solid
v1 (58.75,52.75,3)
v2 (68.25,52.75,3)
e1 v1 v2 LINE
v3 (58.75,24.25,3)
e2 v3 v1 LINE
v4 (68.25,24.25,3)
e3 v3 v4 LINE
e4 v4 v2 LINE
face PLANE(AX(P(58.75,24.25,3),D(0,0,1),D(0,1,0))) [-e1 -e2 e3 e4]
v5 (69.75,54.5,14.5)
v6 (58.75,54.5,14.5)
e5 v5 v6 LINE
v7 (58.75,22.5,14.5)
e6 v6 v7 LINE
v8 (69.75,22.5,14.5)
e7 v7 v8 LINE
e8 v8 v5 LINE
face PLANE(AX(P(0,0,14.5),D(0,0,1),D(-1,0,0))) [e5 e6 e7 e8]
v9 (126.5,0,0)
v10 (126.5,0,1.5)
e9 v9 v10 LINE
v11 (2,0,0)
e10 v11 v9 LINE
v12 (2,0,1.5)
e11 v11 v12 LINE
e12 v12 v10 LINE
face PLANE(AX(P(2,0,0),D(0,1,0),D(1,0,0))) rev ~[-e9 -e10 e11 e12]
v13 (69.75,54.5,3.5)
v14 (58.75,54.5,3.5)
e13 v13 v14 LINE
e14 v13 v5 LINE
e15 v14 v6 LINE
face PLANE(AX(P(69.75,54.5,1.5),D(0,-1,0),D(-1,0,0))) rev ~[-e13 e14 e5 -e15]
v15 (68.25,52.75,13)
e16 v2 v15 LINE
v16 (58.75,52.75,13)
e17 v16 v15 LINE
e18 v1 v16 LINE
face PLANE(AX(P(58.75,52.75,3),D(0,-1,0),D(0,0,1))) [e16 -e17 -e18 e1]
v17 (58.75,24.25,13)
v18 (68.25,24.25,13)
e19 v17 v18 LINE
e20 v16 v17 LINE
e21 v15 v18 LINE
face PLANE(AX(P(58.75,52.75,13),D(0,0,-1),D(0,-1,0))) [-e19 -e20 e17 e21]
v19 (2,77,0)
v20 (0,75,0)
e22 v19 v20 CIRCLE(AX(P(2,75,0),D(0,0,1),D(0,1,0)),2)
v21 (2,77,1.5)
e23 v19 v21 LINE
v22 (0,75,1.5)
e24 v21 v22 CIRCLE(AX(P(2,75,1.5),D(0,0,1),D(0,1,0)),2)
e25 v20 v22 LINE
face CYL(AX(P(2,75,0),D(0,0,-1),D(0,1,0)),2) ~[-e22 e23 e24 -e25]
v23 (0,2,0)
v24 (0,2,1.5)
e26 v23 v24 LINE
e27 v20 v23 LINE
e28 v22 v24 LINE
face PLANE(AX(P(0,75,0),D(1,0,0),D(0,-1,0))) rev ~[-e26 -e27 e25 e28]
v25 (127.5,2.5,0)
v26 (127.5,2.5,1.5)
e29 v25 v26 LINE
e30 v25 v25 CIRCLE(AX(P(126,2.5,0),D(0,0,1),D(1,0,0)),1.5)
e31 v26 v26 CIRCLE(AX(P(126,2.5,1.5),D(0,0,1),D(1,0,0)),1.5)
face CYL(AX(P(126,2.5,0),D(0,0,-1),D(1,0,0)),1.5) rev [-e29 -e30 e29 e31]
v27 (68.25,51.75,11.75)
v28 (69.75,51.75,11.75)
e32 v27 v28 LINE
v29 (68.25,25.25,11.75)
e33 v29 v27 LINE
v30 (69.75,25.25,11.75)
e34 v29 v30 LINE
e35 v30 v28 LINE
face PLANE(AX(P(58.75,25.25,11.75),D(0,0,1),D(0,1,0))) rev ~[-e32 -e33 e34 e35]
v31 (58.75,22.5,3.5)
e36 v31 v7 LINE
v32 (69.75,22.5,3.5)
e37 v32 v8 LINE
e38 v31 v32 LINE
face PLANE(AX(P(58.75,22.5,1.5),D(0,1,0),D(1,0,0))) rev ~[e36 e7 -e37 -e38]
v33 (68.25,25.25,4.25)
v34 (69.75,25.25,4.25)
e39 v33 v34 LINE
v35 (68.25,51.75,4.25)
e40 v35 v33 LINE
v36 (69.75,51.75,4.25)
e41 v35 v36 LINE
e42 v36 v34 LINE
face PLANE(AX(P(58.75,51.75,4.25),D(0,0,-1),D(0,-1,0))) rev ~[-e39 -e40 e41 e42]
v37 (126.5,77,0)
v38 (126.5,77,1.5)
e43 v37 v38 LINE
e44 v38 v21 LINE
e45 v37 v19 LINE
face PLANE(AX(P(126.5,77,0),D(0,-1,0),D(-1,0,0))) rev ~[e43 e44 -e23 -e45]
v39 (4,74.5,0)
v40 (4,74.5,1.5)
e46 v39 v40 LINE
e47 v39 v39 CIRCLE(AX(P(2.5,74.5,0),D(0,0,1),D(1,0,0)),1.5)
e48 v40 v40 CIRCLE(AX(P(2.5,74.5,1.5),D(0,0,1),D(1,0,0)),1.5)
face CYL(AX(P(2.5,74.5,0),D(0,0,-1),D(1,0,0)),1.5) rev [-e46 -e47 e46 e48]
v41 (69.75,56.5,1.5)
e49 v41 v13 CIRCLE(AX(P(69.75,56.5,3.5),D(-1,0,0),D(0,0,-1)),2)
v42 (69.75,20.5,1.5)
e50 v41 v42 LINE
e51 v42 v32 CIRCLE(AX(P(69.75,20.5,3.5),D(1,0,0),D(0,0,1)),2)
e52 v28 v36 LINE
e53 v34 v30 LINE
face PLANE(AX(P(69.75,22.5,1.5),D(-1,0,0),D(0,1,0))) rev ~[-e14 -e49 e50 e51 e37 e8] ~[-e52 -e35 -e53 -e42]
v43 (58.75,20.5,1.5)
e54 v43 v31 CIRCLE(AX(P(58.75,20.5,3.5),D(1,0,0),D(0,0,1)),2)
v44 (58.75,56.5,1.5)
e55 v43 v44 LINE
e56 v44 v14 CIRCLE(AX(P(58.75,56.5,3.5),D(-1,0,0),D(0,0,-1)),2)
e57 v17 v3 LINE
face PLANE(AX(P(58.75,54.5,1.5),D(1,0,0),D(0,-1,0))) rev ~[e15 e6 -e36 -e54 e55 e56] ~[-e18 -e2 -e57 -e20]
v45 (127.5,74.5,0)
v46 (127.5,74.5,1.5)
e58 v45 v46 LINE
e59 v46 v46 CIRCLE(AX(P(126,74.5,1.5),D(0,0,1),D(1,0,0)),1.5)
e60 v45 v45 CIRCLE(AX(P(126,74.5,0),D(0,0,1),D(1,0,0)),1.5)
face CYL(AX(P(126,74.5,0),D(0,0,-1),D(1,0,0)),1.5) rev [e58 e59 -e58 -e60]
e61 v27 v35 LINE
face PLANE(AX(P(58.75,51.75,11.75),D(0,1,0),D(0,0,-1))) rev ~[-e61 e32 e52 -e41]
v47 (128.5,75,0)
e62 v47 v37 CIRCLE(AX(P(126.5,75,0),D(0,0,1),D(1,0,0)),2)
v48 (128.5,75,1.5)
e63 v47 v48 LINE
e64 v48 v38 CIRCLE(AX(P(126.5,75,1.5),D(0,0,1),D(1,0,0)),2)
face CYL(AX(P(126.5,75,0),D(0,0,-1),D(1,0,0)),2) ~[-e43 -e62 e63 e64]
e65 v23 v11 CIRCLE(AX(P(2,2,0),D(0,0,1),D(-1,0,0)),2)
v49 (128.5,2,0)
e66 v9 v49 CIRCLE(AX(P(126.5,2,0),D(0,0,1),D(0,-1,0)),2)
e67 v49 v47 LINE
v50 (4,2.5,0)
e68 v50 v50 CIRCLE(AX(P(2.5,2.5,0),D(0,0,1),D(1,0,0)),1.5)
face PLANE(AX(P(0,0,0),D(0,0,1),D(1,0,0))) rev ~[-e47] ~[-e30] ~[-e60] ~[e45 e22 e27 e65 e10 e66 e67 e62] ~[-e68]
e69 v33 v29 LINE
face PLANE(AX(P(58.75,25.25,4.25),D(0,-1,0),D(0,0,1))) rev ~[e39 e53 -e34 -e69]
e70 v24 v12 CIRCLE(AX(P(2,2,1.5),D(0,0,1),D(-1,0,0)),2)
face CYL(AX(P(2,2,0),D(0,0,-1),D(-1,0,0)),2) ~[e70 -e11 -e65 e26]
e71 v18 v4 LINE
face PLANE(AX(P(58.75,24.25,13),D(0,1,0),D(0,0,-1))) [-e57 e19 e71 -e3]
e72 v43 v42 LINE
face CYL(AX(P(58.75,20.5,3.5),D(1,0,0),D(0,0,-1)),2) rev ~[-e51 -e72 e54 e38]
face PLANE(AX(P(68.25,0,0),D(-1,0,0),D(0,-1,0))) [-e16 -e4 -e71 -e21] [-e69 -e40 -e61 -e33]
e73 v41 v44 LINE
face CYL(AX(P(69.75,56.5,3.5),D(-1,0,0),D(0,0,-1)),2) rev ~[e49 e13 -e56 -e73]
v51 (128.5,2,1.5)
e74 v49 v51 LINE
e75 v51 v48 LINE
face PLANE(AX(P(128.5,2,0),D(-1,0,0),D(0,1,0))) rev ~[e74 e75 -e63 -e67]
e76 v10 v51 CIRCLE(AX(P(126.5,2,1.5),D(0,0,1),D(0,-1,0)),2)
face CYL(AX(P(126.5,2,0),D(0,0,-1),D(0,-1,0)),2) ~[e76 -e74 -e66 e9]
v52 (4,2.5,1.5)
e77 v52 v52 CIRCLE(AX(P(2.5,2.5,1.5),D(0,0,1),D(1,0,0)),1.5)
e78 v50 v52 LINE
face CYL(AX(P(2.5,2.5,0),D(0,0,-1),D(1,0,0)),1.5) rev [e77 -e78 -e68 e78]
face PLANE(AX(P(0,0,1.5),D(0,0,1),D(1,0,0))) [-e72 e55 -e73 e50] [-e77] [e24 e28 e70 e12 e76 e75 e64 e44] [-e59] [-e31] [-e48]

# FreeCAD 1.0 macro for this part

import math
import FreeCAD as App
import Part
import Sketcher
Q = App.Units.Quantity


def edges_at(feature, points):
    """Names of the edges that pass closest to the given points."""
    edges = feature.Shape.Edges
    near = lambda p: min(range(len(edges)), key=lambda i: edges[i].distToShape(Part.Vertex(*p))[0])
    return sorted({f"Edge{near(p) + 1}" for p in points})


def add_polygon(sketch, points):
    """Adds a closed chain of lines whose ends are joined by coincident constraints."""
    first, n = sketch.GeometryCount, len(points)
    for a, b in zip(points, points[1:] + points[:1]):
        sketch.addGeometry(Part.LineSegment(App.Vector(*a, 0), App.Vector(*b, 0)), False)
    for i in range(n):
        sketch.addConstraint(Sketcher.Constraint("Coincident", first + i, 2, first + (i + 1) % n, 1))

doc = App.newDocument("Part")
body = doc.addObject("PartDesign::Body", "Body")

# Sketch on XY plane
sketch1 = doc.addObject("Sketcher::SketchObject", "Sketch")
body.addObject(sketch1)
sketch1.AttachmentSupport = (doc.XY_Plane, [""])
sketch1.MapMode = "FlatFace"
sketch1.addGeometry([
    Part.ArcOfCircle(Part.Circle(App.Vector(2, 2, 0), App.Vector(0, 0, 1), 2), math.radians(180), math.radians(270)),  # 0
    Part.LineSegment(App.Vector(2, 0, 0), App.Vector(126.5, 0, 0)),  # 1
    Part.ArcOfCircle(Part.Circle(App.Vector(126.5, 2, 0), App.Vector(0, 0, 1), 2), math.radians(-90), math.radians(0)),  # 2
    Part.LineSegment(App.Vector(128.5, 2, 0), App.Vector(128.5, 75, 0)),  # 3
    Part.ArcOfCircle(Part.Circle(App.Vector(126.5, 75, 0), App.Vector(0, 0, 1), 2), math.radians(0), math.radians(90)),  # 4
    Part.LineSegment(App.Vector(126.5, 77, 0), App.Vector(2, 77, 0)),  # 5
    Part.ArcOfCircle(Part.Circle(App.Vector(2, 75, 0), App.Vector(0, 0, 1), 2), math.radians(90), math.radians(180)),  # 6
    Part.LineSegment(App.Vector(0, 75, 0), App.Vector(0, 2, 0)),  # 7
    Part.Circle(App.Vector(2.5, 2.5, 0), App.Vector(0, 0, 1), 1.5),  # 8
    Part.Circle(App.Vector(126, 2.5, 0), App.Vector(0, 0, 1), 1.5),  # 9
    Part.Circle(App.Vector(2.5, 74.5, 0), App.Vector(0, 0, 1), 1.5),  # 10
    Part.Circle(App.Vector(126, 74.5, 0), App.Vector(0, 0, 1), 1.5),  # 11
], False)
sketch1.addConstraint([
    Sketcher.Constraint("Tangent", 0, 2, 1, 1),
    Sketcher.Constraint("Tangent", 1, 2, 2, 1),
    Sketcher.Constraint("Tangent", 2, 2, 3, 1),
    Sketcher.Constraint("Tangent", 3, 2, 4, 1),
    Sketcher.Constraint("Tangent", 4, 2, 5, 1),
    Sketcher.Constraint("Tangent", 5, 2, 6, 1),
    Sketcher.Constraint("Tangent", 6, 2, 7, 1),
    Sketcher.Constraint("Tangent", 7, 2, 0, 1),
    Sketcher.Constraint("Horizontal", 1),
    Sketcher.Constraint("Vertical", 3),
    Sketcher.Constraint("Horizontal", 5),
    Sketcher.Constraint("Vertical", 7),
    Sketcher.Constraint("Equal", 0, 2),
    Sketcher.Constraint("Equal", 2, 4),
    Sketcher.Constraint("Equal", 4, 6),
    Sketcher.Constraint("Equal", 8, 9),
    Sketcher.Constraint("Equal", 9, 10),
    Sketcher.Constraint("Equal", 10, 11),
    Sketcher.Constraint("PointOnObject", 0, 2, -1),
    Sketcher.Constraint("PointOnObject", 6, 2, -2),
    Sketcher.Constraint("Horizontal", 8, 3, 9, 3),
    Sketcher.Constraint("Horizontal", 10, 3, 11, 3),
    Sketcher.Constraint("Vertical", 8, 3, 10, 3),
    Sketcher.Constraint("Vertical", 9, 3, 11, 3),
    Sketcher.Constraint("Diameter", 8, Q("3 mm")),
    Sketcher.Constraint("Radius", 0, Q("2 mm")),
    Sketcher.Constraint("DistanceY", -1, 1, 4, 2, Q("77 mm")),
    Sketcher.Constraint("DistanceX", -1, 1, 8, 3, Q("2.5 mm")),
    Sketcher.Constraint("DistanceY", -1, 1, 8, 3, Q("2.5 mm")),
    Sketcher.Constraint("DistanceX", -1, 1, 2, 2, Q("128.5 mm")),
    Sketcher.Constraint("DistanceX", 9, 3, 2, 2, Q("2.5 mm")),
    Sketcher.Constraint("DistanceY", 11, 3, 4, 2, Q("2.5 mm")),
])
pad1 = doc.addObject("PartDesign::Pad", "Pad")
body.addObject(pad1)
pad1.Profile = sketch1
pad1.Length = 1.5

# Sketch on XY plane
sketch2 = doc.addObject("Sketcher::SketchObject", "Sketch001")
body.addObject(sketch2)
sketch2.AttachmentSupport = (doc.XY_Plane, [""])
sketch2.MapMode = "FlatFace"
sketch2.AttachmentOffset = App.Placement(App.Vector(0, 0, 1.5), App.Rotation())
add_polygon(sketch2, [(58.75, 54.5), (58.75, 22.5), (69.75, 22.5), (69.75, 54.5)])  # lines 0-3
sketch2.addConstraint([
    Sketcher.Constraint("Vertical", 0),
    Sketcher.Constraint("Horizontal", 1),
    Sketcher.Constraint("Vertical", 2),
    Sketcher.Constraint("Horizontal", 3),
    Sketcher.Constraint("DistanceX", 1, 1, 1, 2, Q("11 mm")),
    Sketcher.Constraint("DistanceY", 0, 2, 0, 1, Q("32 mm")),
    Sketcher.Constraint("DistanceY", -1, 1, 0, 2, Q("22.5 mm")),
    Sketcher.Constraint("DistanceX", -1, 1, 0, 2, Q("58.75 mm")),
])
pad2 = doc.addObject("PartDesign::Pad", "Pad001")
body.addObject(pad2)
pad2.Profile = sketch2
pad2.Length = 13

# Sketch on YZ plane
sketch3 = doc.addObject("Sketcher::SketchObject", "Sketch002")
body.addObject(sketch3)
sketch3.AttachmentSupport = (doc.YZ_Plane, [""])
sketch3.MapMode = "FlatFace"
sketch3.AttachmentOffset = App.Placement(App.Vector(0, 0, 58.75), App.Rotation())
add_polygon(sketch3, [(25.25, 4.25), (25.25, 11.75), (51.75, 11.75), (51.75, 4.25)])  # lines 0-3
sketch3.addConstraint([
    Sketcher.Constraint("Vertical", 0),
    Sketcher.Constraint("Horizontal", 1),
    Sketcher.Constraint("Vertical", 2),
    Sketcher.Constraint("Horizontal", 3),
    Sketcher.Constraint("DistanceX", 1, 1, 1, 2, Q("26.5 mm")),
    Sketcher.Constraint("DistanceY", 0, 1, 0, 2, Q("7.5 mm")),
    Sketcher.Constraint("DistanceX", -1, 1, 0, 2, Q("25.25 mm")),
    Sketcher.Constraint("DistanceY", -1, 1, 0, 2, Q("11.75 mm")),
])
pocket1 = doc.addObject("PartDesign::Pocket", "Pocket")
body.addObject(pocket1)
pocket1.Profile = sketch3
pocket1.Length = 30
pocket1.Reversed = True

# Sketch on YZ plane
sketch4 = doc.addObject("Sketcher::SketchObject", "Sketch003")
body.addObject(sketch4)
sketch4.AttachmentSupport = (doc.YZ_Plane, [""])
sketch4.MapMode = "FlatFace"
sketch4.AttachmentOffset = App.Placement(App.Vector(0, 0, 58.75), App.Rotation())
add_polygon(sketch4, [(52.75, 3), (24.25, 3), (24.25, 13), (52.75, 13)])  # lines 0-3
add_polygon(sketch4, [(51.75, 11.75), (25.25, 11.75), (25.25, 4.25), (51.75, 4.25)])  # lines 4-7
sketch4.addConstraint([
    Sketcher.Constraint("Horizontal", 0),
    Sketcher.Constraint("Vertical", 1),
    Sketcher.Constraint("Horizontal", 2),
    Sketcher.Constraint("Vertical", 3),
    Sketcher.Constraint("Horizontal", 4),
    Sketcher.Constraint("Vertical", 5),
    Sketcher.Constraint("Horizontal", 6),
    Sketcher.Constraint("Vertical", 7),
    Sketcher.Constraint("DistanceY", 1, 1, 1, 2, Q("10 mm")),
    Sketcher.Constraint("DistanceX", 0, 2, 0, 1, Q("28.5 mm")),
    Sketcher.Constraint("DistanceX", 4, 2, 4, 1, Q("26.5 mm")),
    Sketcher.Constraint("DistanceY", 5, 2, 5, 1, Q("7.5 mm")),
    Sketcher.Constraint("DistanceY", -1, 1, 0, 2, Q("3 mm")),
    Sketcher.Constraint("DistanceX", 1, 2, 4, 2, Q("1 mm")),
    Sketcher.Constraint("DistanceX", -1, 1, 0, 2, Q("24.25 mm")),
    Sketcher.Constraint("DistanceY", -1, 1, 4, 2, Q("11.75 mm")),
])
pocket2 = doc.addObject("PartDesign::Pocket", "Pocket001")
body.addObject(pocket2)
pocket2.Profile = sketch4
pocket2.Length = 9.5
pocket2.Reversed = True
doc.recompute()

fillet = doc.addObject("PartDesign::Fillet", "Fillet")
body.addObject(fillet)
fillet.Base = (pocket2, edges_at(pocket2, [(64.25, 22.5, 1.5)]))
fillet.Radius = 2
doc.recompute()

fillet2 = doc.addObject("PartDesign::Fillet", "Fillet001")
body.addObject(fillet2)
fillet2.Base = (fillet, edges_at(fillet, [(64.25, 54.5, 1.5)]))
fillet2.Radius = 2

doc.recompute()
